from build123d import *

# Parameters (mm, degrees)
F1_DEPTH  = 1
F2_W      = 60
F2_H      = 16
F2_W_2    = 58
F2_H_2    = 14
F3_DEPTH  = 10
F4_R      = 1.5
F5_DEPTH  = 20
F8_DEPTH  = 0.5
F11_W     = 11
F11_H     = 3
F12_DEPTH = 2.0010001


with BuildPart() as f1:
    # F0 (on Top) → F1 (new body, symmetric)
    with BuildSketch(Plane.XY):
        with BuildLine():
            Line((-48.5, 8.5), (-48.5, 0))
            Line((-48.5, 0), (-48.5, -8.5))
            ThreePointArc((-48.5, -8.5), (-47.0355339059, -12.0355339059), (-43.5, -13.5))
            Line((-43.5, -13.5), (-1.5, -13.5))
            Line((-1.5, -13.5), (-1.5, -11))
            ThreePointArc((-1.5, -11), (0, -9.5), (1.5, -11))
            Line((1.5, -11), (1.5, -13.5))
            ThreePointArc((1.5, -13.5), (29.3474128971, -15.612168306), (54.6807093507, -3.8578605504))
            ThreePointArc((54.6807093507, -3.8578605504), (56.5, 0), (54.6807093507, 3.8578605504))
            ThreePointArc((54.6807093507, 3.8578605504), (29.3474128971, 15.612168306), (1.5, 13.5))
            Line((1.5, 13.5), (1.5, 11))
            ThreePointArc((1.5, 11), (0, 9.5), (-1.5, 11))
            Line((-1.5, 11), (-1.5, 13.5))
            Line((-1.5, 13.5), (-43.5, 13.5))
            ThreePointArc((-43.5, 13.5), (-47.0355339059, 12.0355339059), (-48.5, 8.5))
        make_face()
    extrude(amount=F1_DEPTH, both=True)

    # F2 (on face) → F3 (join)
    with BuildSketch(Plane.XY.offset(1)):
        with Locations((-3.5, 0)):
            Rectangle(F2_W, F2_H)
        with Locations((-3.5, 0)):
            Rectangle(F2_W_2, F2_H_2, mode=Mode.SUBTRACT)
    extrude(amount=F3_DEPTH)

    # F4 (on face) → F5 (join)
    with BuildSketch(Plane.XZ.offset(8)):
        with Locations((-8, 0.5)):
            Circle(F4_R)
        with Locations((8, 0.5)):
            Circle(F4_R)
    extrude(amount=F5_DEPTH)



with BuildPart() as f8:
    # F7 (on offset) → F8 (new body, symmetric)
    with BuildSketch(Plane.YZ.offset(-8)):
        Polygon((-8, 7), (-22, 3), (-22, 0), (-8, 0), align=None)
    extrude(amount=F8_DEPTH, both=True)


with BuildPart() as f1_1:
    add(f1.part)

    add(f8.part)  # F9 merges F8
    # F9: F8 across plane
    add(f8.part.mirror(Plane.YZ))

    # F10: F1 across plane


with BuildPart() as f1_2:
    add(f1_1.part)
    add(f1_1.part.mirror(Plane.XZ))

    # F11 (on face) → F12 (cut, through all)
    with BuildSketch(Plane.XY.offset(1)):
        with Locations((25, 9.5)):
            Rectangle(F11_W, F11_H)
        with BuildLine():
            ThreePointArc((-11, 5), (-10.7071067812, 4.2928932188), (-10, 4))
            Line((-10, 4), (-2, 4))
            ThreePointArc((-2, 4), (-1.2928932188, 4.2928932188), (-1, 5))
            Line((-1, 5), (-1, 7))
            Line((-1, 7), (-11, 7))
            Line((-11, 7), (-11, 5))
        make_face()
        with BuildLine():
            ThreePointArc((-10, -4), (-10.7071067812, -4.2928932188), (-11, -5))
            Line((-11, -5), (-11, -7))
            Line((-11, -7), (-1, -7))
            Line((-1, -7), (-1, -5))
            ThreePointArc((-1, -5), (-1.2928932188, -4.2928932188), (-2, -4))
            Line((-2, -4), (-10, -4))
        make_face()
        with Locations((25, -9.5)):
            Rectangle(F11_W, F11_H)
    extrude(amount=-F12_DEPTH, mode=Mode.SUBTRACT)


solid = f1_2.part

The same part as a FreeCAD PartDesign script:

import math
import FreeCAD as App
import Part
import Sketcher

V = App.Vector


def add_polygon(sketch, points):
    """Adds a closed chain of lines whose ends are joined by coincident constraints."""
    first, n = sketch.GeometryCount, len(points)
    for a, b in zip(points, points[1:] + points[:1]):
        sketch.addGeometry(Part.LineSegment(App.Vector(*a, 0), App.Vector(*b, 0)), False)
    for i in range(n):
        sketch.addConstraint(Sketcher.Constraint("Coincident", first + i, 2, first + (i + 1) % n, 1))

doc = App.newDocument("Part")
body = doc.addObject("PartDesign::Body", "Body")

sketch1 = body.newObject("Sketcher::SketchObject", "Sketch")
sketch1.AttachmentSupport = (doc.getObject("XY_Plane"), [""])
sketch1.MapMode = "FlatFace"
sketch1.addGeometry([
    Part.LineSegment(V(-48.5, 8.5, 0), V(-48.5, -8.5, 0)),
    Part.ArcOfCircle(Part.Circle(V(-43.5, -8.5, 0), V(0, 0, 1), 5), math.radians(180), math.radians(270)),
    Part.LineSegment(V(-43.5, -13.5, 0), V(-1.5, -13.5, 0)),
    Part.LineSegment(V(-1.5, -13.5, 0), V(-1.5, -11, 0)),
    Part.ArcOfCircle(Part.Circle(V(0, -11, 0), V(0, 0, 1), 1.5), math.radians(0), math.radians(180)),
    Part.LineSegment(V(1.5, -11, 0), V(1.5, -13.5, 0)),
    Part.ArcOfCircle(Part.Circle(V(19.5, 38.8, 0), V(0, 0, 1), 55.3), math.radians(-109), math.radians(-50)),
    Part.ArcOfCircle(Part.Circle(V(51.5, 0, 0), V(0, 0, 1), 5), math.radians(-50), math.radians(50)),
    Part.ArcOfCircle(Part.Circle(V(19.5, -38.8, 0), V(0, 0, 1), 55.3), math.radians(50), math.radians(109)),
    Part.LineSegment(V(1.5, 13.5, 0), V(1.5, 11, 0)),
    Part.ArcOfCircle(Part.Circle(V(0, 11, 0), V(0, 0, 1), 1.5), math.radians(180), math.radians(360)),
    Part.LineSegment(V(-1.5, 11, 0), V(-1.5, 13.5, 0)),
    Part.LineSegment(V(-1.5, 13.5, 0), V(-43.5, 13.5, 0)),
    Part.ArcOfCircle(Part.Circle(V(-43.5, 8.5, 0), V(0, 0, 1), 5), math.radians(90), math.radians(180)),
], False)
sketch1.addConstraint([
    Sketcher.Constraint("Tangent", 0, 2, 1, 1),
    Sketcher.Constraint("Tangent", 1, 2, 2, 1),
    Sketcher.Constraint("Coincident", 2, 2, 3, 1),
    Sketcher.Constraint("Tangent", 3, 2, 4, 2),
    Sketcher.Constraint("Tangent", 4, 1, 5, 1),
    Sketcher.Constraint("Coincident", 5, 2, 6, 1),
    Sketcher.Constraint("Tangent", 6, 2, 7, 1),
    Sketcher.Constraint("Tangent", 7, 2, 8, 1),
    Sketcher.Constraint("Coincident", 8, 2, 9, 1),
    Sketcher.Constraint("Tangent", 9, 2, 10, 2),
    Sketcher.Constraint("Tangent", 10, 1, 11, 1),
    Sketcher.Constraint("Coincident", 11, 2, 12, 1),
    Sketcher.Constraint("Tangent", 12, 2, 13, 1),
    Sketcher.Constraint("Tangent", 13, 2, 0, 1),
    Sketcher.Constraint("Vertical", 0),
    Sketcher.Constraint("Horizontal", 2),
    Sketcher.Constraint("Vertical", 3),
    Sketcher.Constraint("Vertical", 5),
    Sketcher.Constraint("Vertical", 9),
    Sketcher.Constraint("Vertical", 11),
    Sketcher.Constraint("Horizontal", 12),
    Sketcher.Constraint("Equal", 1, 7),
    Sketcher.Constraint("Equal", 6, 8),
    Sketcher.Constraint("Equal", 4, 10),
    Sketcher.Constraint("Equal", 7, 13),
    Sketcher.Constraint("Symmetric", 4, 3, 10, 3, -1, 1),
    Sketcher.Constraint("Symmetric", 2, 2, 5, 2, -2),
    Sketcher.Constraint("Symmetric", 6, 3, 8, 3, -1),
    Sketcher.Constraint("Horizontal", 8, 2, 11, 2),
    Sketcher.Constraint("Radius", 1, 5.0),
    Sketcher.Constraint("Radius", 4, 1.5),
    Sketcher.Constraint("DistanceX", 2, 1, 2, 2, 42.0),
    Sketcher.Constraint("DistanceY", 0, 2, 0, 1, 17.0),
    Sketcher.Constraint("DistanceY", 3, 1, 3, 2, 2.5),
    Sketcher.Constraint("DistanceX", 1, 3, 7, 3, 95.0),
    Sketcher.Constraint("DistanceX", -1, 1, 6, 3, 19.474),
])
pad1 = body.newObject("PartDesign::Pad", "Pad")
pad1.Profile = sketch1
pad1.Length = 2
pad1.Midplane = True

sketch2 = body.newObject("Sketcher::SketchObject", "Sketch001")
sketch2.AttachmentSupport = (doc.getObject("XY_Plane"), [""])
sketch2.MapMode = "FlatFace"
sketch2.AttachmentOffset = App.Placement(V(0, 0, 1), App.Rotation())
add_polygon(sketch2, [(-34, 8), (-34, -8), (26, -8), (26, 8)])
add_polygon(sketch2, [(26, -7), (-32, -7), (-32, 7), (26, 7)])
sketch2.addConstraint([
    Sketcher.Constraint("Vertical", 0),
    Sketcher.Constraint("Horizontal", 1),
    Sketcher.Constraint("Vertical", 2),
    Sketcher.Constraint("Horizontal", 3),
    Sketcher.Constraint("Horizontal", 4),
    Sketcher.Constraint("Vertical", 5),
    Sketcher.Constraint("Horizontal", 6),
    Sketcher.Constraint("Vertical", 7),
    Sketcher.Constraint("DistanceX", 1, 1, 1, 2, 60.0),
    Sketcher.Constraint("DistanceX", 4, 2, 4, 1, 58.0),
    Sketcher.Constraint("DistanceY", 0, 2, 0, 1, 16.0),
    Sketcher.Constraint("DistanceY", 5, 1, 5, 2, 14.0),
    Sketcher.Constraint("DistanceY", 0, 2, -1, 1, 8.0),
    Sketcher.Constraint("DistanceY", 4, 2, -1, 1, 7.0),
    Sketcher.Constraint("DistanceX", 0, 2, 4, 2, 1.0),
    Sketcher.Constraint("DistanceX", 0, 2, -1, 1, 33.5),
])
pad2 = body.newObject("PartDesign::Pad", "Pad001")
pad2.Profile = sketch2
pad2.Length = 10

sketch3 = body.newObject("Sketcher::SketchObject", "Sketch002")
sketch3.AttachmentSupport = (doc.getObject("XZ_Plane"), [""])
sketch3.MapMode = "FlatFace"
sketch3.AttachmentOffset = App.Placement(V(0, 0, 8), App.Rotation())
sketch3.addGeometry([
    Part.Circle(V(-8, 0.5, 0), V(0, 0, 1), 1.5),
    Part.Circle(V(8, 0.5, 0), V(0, 0, 1), 1.5),
], False)
sketch3.addConstraint([
    Sketcher.Constraint("Equal", 0, 1),
    Sketcher.Constraint("Symmetric", 0, 3, 1, 3, -2),
    Sketcher.Constraint("Diameter", 0, 3.0),
    Sketcher.Constraint("DistanceX", 0, 3, -1, 1, 8.0),
    Sketcher.Constraint("DistanceY", -1, 1, 0, 3, 0.5),
])
pad3 = body.newObject("PartDesign::Pad", "Pad002")
pad3.Profile = sketch3
pad3.Length = 20
body2 = doc.addObject("PartDesign::Body", "Body001")

sketch4 = body2.newObject("Sketcher::SketchObject", "Sketch003")
sketch4.AttachmentSupport = (doc.getObject("YZ_Plane001"), [""])
sketch4.MapMode = "FlatFace"
sketch4.AttachmentOffset = App.Placement(V(0, 0, -8), App.Rotation())
add_polygon(sketch4, [(-8, 7), (-22, 3), (-22, 0), (-8, 0)])
sketch4.addConstraint([
    Sketcher.Constraint("Vertical", 1),
    Sketcher.Constraint("Horizontal", 2),
    Sketcher.Constraint("Vertical", 3),
    Sketcher.Constraint("PointOnObject", 1, 2, -1),
    Sketcher.Constraint("DistanceX", 2, 1, 2, 2, 14.0),
    Sketcher.Constraint("DistanceY", 1, 2, 1, 1, 3.0),
    Sketcher.Constraint("DistanceY", 3, 1, 3, 2, 7.0),
    Sketcher.Constraint("DistanceX", 0, 2, -1, 1, 22.0),
])
pad4 = body2.newObject("PartDesign::Pad", "Pad003")
pad4.Profile = sketch4
pad4.Length = 1
pad4.Midplane = True
doc.recompute()

body3 = doc.addObject("PartDesign::Body", "Body002")
body3.BaseFeature = body2
boolean = body.newObject("PartDesign::Boolean", "Boolean")
boolean.Type = "Fuse"
boolean.addObjects([body3])
doc.recompute()

mirroring = doc.addObject("Part::Mirroring", "Mirroring")
mirroring.Source = body2
mirroring.Base = V(0, 0, 0)
mirroring.Normal = V(1, 0, 0)
body4 = doc.addObject("PartDesign::Body", "Body003")
body4.BaseFeature = mirroring
boolean2 = body.newObject("PartDesign::Boolean", "Boolean001")
boolean2.Type = "Fuse"
boolean2.addObjects([body4])
doc.recompute()
body5 = doc.addObject("PartDesign::Body", "Body004")
doc.recompute()

body5.BaseFeature = body
doc.recompute()

mirroring2 = doc.addObject("Part::Mirroring", "Mirroring001")
mirroring2.Source = body
mirroring2.Base = V(0, 0, 0)
mirroring2.Normal = V(0, -1, 0)
body6 = doc.addObject("PartDesign::Body", "Body005")
body6.BaseFeature = mirroring2
boolean3 = body5.newObject("PartDesign::Boolean", "Boolean002")
boolean3.Type = "Fuse"
boolean3.addObjects([body6])
doc.recompute()

sketch5 = body5.newObject("Sketcher::SketchObject", "Sketch004")
sketch5.AttachmentSupport = (doc.getObject("XY_Plane004"), [""])
sketch5.MapMode = "FlatFace"
sketch5.AttachmentOffset = App.Placement(V(0, 0, 1), App.Rotation())
add_polygon(sketch5, [(19.5, 11), (19.5, 8), (30.5, 8), (30.5, 11)])
sketch5.addGeometry(Part.ArcOfCircle(Part.Circle(V(-10, 5, 0), V(0, 0, 1), 1), math.radians(180), math.radians(270)), False)
sketch5.addGeometry(Part.LineSegment(V(-10, 4, 0), V(-2, 4, 0)), False)
sketch5.addGeometry(Part.ArcOfCircle(Part.Circle(V(-2, 5, 0), V(0, 0, 1), 1), math.radians(-90), math.radians(0)), False)
sketch5.addGeometry(Part.LineSegment(V(-1, 5, 0), V(-1, 7, 0)), False)
sketch5.addGeometry(Part.LineSegment(V(-1, 7, 0), V(-11, 7, 0)), False)
sketch5.addGeometry(Part.LineSegment(V(-11, 7, 0), V(-11, 5, 0)), False)
sketch5.addGeometry(Part.ArcOfCircle(Part.Circle(V(-10, -5, 0), V(0, 0, 1), 1), math.radians(90), math.radians(180)), False)
sketch5.addGeometry(Part.LineSegment(V(-11, -5, 0), V(-11, -7, 0)), False)
sketch5.addGeometry(Part.LineSegment(V(-11, -7, 0), V(-1, -7, 0)), False)
sketch5.addGeometry(Part.LineSegment(V(-1, -7, 0), V(-1, -5, 0)), False)
sketch5.addGeometry(Part.ArcOfCircle(Part.Circle(V(-2, -5, 0), V(0, 0, 1), 1), math.radians(0), math.radians(90)), False)
sketch5.addGeometry(Part.LineSegment(V(-2, -4, 0), V(-10, -4, 0)), False)
add_polygon(sketch5, [(19.5, -8), (19.5, -11), (30.5, -11), (30.5, -8)])
sketch5.addConstraint([
    Sketcher.Constraint("Tangent", 4, 2, 5, 1),
    Sketcher.Constraint("Tangent", 5, 2, 6, 1),
    Sketcher.Constraint("Tangent", 6, 2, 7, 1),
    Sketcher.Constraint("Coincident", 7, 2, 8, 1),
    Sketcher.Constraint("Coincident", 8, 2, 9, 1),
    Sketcher.Constraint("Tangent", 9, 2, 4, 1),
    Sketcher.Constraint("Tangent", 10, 2, 11, 1),
    Sketcher.Constraint("Coincident", 11, 2, 12, 1),
    Sketcher.Constraint("Coincident", 12, 2, 13, 1),
    Sketcher.Constraint("Tangent", 13, 2, 14, 1),
    Sketcher.Constraint("Tangent", 14, 2, 15, 1),
    Sketcher.Constraint("Tangent", 15, 2, 10, 1),
    Sketcher.Constraint("Vertical", 0),
    Sketcher.Constraint("Horizontal", 1),
    Sketcher.Constraint("Vertical", 2),
    Sketcher.Constraint("Horizontal", 3),
    Sketcher.Constraint("Horizontal", 5),
    Sketcher.Constraint("Vertical", 7),
    Sketcher.Constraint("Horizontal", 8),
    Sketcher.Constraint("Vertical", 9),
    Sketcher.Constraint("Vertical", 11),
    Sketcher.Constraint("Horizontal", 12),
    Sketcher.Constraint("Vertical", 13),
    Sketcher.Constraint("Horizontal", 15),
    Sketcher.Constraint("Vertical", 16),
    Sketcher.Constraint("Horizontal", 17),
    Sketcher.Constraint("Vertical", 18),
    Sketcher.Constraint("Horizontal", 19),
    Sketcher.Constraint("Equal", 4, 6),
    Sketcher.Constraint("Equal", 6, 10),
    Sketcher.Constraint("Equal", 10, 14),
    Sketcher.Constraint("Symmetric", 4, 3, 10, 3, -1),
    Sketcher.Constraint("Symmetric", 7, 2, 12, 2, -1),
    Sketcher.Constraint("Symmetric", 3, 2, 16, 2, -1),
    Sketcher.Constraint("Symmetric", 1, 2, 18, 2, -1),
    Sketcher.Constraint("Radius", 4, 1.0),
    Sketcher.Constraint("DistanceX", 1, 1, 1, 2, 11.0),
    Sketcher.Constraint("DistanceX", 5, 1, 5, 2, 8.0),
    Sketcher.Constraint("DistanceY", 0, 2, 0, 1, 3.0),
    Sketcher.Constraint("DistanceY", 7, 1, 7, 2, 2.0),
    Sketcher.Constraint("DistanceX", 4, 3, -1, 1, 10.0),
    Sketcher.Constraint("DistanceY", -1, 1, 4, 3, 5.0),
    Sketcher.Constraint("DistanceY", -1, 1, 0, 2, 8.0),
    Sketcher.Constraint("DistanceX", -1, 1, 0, 2, 19.5),
])
pocket1 = body5.newObject("PartDesign::Pocket", "Pocket")
pocket1.Profile = sketch5
pocket1.Type = "ThroughAll"
mirroring.Visibility = False
mirroring2.Visibility = False

doc.recompute()
